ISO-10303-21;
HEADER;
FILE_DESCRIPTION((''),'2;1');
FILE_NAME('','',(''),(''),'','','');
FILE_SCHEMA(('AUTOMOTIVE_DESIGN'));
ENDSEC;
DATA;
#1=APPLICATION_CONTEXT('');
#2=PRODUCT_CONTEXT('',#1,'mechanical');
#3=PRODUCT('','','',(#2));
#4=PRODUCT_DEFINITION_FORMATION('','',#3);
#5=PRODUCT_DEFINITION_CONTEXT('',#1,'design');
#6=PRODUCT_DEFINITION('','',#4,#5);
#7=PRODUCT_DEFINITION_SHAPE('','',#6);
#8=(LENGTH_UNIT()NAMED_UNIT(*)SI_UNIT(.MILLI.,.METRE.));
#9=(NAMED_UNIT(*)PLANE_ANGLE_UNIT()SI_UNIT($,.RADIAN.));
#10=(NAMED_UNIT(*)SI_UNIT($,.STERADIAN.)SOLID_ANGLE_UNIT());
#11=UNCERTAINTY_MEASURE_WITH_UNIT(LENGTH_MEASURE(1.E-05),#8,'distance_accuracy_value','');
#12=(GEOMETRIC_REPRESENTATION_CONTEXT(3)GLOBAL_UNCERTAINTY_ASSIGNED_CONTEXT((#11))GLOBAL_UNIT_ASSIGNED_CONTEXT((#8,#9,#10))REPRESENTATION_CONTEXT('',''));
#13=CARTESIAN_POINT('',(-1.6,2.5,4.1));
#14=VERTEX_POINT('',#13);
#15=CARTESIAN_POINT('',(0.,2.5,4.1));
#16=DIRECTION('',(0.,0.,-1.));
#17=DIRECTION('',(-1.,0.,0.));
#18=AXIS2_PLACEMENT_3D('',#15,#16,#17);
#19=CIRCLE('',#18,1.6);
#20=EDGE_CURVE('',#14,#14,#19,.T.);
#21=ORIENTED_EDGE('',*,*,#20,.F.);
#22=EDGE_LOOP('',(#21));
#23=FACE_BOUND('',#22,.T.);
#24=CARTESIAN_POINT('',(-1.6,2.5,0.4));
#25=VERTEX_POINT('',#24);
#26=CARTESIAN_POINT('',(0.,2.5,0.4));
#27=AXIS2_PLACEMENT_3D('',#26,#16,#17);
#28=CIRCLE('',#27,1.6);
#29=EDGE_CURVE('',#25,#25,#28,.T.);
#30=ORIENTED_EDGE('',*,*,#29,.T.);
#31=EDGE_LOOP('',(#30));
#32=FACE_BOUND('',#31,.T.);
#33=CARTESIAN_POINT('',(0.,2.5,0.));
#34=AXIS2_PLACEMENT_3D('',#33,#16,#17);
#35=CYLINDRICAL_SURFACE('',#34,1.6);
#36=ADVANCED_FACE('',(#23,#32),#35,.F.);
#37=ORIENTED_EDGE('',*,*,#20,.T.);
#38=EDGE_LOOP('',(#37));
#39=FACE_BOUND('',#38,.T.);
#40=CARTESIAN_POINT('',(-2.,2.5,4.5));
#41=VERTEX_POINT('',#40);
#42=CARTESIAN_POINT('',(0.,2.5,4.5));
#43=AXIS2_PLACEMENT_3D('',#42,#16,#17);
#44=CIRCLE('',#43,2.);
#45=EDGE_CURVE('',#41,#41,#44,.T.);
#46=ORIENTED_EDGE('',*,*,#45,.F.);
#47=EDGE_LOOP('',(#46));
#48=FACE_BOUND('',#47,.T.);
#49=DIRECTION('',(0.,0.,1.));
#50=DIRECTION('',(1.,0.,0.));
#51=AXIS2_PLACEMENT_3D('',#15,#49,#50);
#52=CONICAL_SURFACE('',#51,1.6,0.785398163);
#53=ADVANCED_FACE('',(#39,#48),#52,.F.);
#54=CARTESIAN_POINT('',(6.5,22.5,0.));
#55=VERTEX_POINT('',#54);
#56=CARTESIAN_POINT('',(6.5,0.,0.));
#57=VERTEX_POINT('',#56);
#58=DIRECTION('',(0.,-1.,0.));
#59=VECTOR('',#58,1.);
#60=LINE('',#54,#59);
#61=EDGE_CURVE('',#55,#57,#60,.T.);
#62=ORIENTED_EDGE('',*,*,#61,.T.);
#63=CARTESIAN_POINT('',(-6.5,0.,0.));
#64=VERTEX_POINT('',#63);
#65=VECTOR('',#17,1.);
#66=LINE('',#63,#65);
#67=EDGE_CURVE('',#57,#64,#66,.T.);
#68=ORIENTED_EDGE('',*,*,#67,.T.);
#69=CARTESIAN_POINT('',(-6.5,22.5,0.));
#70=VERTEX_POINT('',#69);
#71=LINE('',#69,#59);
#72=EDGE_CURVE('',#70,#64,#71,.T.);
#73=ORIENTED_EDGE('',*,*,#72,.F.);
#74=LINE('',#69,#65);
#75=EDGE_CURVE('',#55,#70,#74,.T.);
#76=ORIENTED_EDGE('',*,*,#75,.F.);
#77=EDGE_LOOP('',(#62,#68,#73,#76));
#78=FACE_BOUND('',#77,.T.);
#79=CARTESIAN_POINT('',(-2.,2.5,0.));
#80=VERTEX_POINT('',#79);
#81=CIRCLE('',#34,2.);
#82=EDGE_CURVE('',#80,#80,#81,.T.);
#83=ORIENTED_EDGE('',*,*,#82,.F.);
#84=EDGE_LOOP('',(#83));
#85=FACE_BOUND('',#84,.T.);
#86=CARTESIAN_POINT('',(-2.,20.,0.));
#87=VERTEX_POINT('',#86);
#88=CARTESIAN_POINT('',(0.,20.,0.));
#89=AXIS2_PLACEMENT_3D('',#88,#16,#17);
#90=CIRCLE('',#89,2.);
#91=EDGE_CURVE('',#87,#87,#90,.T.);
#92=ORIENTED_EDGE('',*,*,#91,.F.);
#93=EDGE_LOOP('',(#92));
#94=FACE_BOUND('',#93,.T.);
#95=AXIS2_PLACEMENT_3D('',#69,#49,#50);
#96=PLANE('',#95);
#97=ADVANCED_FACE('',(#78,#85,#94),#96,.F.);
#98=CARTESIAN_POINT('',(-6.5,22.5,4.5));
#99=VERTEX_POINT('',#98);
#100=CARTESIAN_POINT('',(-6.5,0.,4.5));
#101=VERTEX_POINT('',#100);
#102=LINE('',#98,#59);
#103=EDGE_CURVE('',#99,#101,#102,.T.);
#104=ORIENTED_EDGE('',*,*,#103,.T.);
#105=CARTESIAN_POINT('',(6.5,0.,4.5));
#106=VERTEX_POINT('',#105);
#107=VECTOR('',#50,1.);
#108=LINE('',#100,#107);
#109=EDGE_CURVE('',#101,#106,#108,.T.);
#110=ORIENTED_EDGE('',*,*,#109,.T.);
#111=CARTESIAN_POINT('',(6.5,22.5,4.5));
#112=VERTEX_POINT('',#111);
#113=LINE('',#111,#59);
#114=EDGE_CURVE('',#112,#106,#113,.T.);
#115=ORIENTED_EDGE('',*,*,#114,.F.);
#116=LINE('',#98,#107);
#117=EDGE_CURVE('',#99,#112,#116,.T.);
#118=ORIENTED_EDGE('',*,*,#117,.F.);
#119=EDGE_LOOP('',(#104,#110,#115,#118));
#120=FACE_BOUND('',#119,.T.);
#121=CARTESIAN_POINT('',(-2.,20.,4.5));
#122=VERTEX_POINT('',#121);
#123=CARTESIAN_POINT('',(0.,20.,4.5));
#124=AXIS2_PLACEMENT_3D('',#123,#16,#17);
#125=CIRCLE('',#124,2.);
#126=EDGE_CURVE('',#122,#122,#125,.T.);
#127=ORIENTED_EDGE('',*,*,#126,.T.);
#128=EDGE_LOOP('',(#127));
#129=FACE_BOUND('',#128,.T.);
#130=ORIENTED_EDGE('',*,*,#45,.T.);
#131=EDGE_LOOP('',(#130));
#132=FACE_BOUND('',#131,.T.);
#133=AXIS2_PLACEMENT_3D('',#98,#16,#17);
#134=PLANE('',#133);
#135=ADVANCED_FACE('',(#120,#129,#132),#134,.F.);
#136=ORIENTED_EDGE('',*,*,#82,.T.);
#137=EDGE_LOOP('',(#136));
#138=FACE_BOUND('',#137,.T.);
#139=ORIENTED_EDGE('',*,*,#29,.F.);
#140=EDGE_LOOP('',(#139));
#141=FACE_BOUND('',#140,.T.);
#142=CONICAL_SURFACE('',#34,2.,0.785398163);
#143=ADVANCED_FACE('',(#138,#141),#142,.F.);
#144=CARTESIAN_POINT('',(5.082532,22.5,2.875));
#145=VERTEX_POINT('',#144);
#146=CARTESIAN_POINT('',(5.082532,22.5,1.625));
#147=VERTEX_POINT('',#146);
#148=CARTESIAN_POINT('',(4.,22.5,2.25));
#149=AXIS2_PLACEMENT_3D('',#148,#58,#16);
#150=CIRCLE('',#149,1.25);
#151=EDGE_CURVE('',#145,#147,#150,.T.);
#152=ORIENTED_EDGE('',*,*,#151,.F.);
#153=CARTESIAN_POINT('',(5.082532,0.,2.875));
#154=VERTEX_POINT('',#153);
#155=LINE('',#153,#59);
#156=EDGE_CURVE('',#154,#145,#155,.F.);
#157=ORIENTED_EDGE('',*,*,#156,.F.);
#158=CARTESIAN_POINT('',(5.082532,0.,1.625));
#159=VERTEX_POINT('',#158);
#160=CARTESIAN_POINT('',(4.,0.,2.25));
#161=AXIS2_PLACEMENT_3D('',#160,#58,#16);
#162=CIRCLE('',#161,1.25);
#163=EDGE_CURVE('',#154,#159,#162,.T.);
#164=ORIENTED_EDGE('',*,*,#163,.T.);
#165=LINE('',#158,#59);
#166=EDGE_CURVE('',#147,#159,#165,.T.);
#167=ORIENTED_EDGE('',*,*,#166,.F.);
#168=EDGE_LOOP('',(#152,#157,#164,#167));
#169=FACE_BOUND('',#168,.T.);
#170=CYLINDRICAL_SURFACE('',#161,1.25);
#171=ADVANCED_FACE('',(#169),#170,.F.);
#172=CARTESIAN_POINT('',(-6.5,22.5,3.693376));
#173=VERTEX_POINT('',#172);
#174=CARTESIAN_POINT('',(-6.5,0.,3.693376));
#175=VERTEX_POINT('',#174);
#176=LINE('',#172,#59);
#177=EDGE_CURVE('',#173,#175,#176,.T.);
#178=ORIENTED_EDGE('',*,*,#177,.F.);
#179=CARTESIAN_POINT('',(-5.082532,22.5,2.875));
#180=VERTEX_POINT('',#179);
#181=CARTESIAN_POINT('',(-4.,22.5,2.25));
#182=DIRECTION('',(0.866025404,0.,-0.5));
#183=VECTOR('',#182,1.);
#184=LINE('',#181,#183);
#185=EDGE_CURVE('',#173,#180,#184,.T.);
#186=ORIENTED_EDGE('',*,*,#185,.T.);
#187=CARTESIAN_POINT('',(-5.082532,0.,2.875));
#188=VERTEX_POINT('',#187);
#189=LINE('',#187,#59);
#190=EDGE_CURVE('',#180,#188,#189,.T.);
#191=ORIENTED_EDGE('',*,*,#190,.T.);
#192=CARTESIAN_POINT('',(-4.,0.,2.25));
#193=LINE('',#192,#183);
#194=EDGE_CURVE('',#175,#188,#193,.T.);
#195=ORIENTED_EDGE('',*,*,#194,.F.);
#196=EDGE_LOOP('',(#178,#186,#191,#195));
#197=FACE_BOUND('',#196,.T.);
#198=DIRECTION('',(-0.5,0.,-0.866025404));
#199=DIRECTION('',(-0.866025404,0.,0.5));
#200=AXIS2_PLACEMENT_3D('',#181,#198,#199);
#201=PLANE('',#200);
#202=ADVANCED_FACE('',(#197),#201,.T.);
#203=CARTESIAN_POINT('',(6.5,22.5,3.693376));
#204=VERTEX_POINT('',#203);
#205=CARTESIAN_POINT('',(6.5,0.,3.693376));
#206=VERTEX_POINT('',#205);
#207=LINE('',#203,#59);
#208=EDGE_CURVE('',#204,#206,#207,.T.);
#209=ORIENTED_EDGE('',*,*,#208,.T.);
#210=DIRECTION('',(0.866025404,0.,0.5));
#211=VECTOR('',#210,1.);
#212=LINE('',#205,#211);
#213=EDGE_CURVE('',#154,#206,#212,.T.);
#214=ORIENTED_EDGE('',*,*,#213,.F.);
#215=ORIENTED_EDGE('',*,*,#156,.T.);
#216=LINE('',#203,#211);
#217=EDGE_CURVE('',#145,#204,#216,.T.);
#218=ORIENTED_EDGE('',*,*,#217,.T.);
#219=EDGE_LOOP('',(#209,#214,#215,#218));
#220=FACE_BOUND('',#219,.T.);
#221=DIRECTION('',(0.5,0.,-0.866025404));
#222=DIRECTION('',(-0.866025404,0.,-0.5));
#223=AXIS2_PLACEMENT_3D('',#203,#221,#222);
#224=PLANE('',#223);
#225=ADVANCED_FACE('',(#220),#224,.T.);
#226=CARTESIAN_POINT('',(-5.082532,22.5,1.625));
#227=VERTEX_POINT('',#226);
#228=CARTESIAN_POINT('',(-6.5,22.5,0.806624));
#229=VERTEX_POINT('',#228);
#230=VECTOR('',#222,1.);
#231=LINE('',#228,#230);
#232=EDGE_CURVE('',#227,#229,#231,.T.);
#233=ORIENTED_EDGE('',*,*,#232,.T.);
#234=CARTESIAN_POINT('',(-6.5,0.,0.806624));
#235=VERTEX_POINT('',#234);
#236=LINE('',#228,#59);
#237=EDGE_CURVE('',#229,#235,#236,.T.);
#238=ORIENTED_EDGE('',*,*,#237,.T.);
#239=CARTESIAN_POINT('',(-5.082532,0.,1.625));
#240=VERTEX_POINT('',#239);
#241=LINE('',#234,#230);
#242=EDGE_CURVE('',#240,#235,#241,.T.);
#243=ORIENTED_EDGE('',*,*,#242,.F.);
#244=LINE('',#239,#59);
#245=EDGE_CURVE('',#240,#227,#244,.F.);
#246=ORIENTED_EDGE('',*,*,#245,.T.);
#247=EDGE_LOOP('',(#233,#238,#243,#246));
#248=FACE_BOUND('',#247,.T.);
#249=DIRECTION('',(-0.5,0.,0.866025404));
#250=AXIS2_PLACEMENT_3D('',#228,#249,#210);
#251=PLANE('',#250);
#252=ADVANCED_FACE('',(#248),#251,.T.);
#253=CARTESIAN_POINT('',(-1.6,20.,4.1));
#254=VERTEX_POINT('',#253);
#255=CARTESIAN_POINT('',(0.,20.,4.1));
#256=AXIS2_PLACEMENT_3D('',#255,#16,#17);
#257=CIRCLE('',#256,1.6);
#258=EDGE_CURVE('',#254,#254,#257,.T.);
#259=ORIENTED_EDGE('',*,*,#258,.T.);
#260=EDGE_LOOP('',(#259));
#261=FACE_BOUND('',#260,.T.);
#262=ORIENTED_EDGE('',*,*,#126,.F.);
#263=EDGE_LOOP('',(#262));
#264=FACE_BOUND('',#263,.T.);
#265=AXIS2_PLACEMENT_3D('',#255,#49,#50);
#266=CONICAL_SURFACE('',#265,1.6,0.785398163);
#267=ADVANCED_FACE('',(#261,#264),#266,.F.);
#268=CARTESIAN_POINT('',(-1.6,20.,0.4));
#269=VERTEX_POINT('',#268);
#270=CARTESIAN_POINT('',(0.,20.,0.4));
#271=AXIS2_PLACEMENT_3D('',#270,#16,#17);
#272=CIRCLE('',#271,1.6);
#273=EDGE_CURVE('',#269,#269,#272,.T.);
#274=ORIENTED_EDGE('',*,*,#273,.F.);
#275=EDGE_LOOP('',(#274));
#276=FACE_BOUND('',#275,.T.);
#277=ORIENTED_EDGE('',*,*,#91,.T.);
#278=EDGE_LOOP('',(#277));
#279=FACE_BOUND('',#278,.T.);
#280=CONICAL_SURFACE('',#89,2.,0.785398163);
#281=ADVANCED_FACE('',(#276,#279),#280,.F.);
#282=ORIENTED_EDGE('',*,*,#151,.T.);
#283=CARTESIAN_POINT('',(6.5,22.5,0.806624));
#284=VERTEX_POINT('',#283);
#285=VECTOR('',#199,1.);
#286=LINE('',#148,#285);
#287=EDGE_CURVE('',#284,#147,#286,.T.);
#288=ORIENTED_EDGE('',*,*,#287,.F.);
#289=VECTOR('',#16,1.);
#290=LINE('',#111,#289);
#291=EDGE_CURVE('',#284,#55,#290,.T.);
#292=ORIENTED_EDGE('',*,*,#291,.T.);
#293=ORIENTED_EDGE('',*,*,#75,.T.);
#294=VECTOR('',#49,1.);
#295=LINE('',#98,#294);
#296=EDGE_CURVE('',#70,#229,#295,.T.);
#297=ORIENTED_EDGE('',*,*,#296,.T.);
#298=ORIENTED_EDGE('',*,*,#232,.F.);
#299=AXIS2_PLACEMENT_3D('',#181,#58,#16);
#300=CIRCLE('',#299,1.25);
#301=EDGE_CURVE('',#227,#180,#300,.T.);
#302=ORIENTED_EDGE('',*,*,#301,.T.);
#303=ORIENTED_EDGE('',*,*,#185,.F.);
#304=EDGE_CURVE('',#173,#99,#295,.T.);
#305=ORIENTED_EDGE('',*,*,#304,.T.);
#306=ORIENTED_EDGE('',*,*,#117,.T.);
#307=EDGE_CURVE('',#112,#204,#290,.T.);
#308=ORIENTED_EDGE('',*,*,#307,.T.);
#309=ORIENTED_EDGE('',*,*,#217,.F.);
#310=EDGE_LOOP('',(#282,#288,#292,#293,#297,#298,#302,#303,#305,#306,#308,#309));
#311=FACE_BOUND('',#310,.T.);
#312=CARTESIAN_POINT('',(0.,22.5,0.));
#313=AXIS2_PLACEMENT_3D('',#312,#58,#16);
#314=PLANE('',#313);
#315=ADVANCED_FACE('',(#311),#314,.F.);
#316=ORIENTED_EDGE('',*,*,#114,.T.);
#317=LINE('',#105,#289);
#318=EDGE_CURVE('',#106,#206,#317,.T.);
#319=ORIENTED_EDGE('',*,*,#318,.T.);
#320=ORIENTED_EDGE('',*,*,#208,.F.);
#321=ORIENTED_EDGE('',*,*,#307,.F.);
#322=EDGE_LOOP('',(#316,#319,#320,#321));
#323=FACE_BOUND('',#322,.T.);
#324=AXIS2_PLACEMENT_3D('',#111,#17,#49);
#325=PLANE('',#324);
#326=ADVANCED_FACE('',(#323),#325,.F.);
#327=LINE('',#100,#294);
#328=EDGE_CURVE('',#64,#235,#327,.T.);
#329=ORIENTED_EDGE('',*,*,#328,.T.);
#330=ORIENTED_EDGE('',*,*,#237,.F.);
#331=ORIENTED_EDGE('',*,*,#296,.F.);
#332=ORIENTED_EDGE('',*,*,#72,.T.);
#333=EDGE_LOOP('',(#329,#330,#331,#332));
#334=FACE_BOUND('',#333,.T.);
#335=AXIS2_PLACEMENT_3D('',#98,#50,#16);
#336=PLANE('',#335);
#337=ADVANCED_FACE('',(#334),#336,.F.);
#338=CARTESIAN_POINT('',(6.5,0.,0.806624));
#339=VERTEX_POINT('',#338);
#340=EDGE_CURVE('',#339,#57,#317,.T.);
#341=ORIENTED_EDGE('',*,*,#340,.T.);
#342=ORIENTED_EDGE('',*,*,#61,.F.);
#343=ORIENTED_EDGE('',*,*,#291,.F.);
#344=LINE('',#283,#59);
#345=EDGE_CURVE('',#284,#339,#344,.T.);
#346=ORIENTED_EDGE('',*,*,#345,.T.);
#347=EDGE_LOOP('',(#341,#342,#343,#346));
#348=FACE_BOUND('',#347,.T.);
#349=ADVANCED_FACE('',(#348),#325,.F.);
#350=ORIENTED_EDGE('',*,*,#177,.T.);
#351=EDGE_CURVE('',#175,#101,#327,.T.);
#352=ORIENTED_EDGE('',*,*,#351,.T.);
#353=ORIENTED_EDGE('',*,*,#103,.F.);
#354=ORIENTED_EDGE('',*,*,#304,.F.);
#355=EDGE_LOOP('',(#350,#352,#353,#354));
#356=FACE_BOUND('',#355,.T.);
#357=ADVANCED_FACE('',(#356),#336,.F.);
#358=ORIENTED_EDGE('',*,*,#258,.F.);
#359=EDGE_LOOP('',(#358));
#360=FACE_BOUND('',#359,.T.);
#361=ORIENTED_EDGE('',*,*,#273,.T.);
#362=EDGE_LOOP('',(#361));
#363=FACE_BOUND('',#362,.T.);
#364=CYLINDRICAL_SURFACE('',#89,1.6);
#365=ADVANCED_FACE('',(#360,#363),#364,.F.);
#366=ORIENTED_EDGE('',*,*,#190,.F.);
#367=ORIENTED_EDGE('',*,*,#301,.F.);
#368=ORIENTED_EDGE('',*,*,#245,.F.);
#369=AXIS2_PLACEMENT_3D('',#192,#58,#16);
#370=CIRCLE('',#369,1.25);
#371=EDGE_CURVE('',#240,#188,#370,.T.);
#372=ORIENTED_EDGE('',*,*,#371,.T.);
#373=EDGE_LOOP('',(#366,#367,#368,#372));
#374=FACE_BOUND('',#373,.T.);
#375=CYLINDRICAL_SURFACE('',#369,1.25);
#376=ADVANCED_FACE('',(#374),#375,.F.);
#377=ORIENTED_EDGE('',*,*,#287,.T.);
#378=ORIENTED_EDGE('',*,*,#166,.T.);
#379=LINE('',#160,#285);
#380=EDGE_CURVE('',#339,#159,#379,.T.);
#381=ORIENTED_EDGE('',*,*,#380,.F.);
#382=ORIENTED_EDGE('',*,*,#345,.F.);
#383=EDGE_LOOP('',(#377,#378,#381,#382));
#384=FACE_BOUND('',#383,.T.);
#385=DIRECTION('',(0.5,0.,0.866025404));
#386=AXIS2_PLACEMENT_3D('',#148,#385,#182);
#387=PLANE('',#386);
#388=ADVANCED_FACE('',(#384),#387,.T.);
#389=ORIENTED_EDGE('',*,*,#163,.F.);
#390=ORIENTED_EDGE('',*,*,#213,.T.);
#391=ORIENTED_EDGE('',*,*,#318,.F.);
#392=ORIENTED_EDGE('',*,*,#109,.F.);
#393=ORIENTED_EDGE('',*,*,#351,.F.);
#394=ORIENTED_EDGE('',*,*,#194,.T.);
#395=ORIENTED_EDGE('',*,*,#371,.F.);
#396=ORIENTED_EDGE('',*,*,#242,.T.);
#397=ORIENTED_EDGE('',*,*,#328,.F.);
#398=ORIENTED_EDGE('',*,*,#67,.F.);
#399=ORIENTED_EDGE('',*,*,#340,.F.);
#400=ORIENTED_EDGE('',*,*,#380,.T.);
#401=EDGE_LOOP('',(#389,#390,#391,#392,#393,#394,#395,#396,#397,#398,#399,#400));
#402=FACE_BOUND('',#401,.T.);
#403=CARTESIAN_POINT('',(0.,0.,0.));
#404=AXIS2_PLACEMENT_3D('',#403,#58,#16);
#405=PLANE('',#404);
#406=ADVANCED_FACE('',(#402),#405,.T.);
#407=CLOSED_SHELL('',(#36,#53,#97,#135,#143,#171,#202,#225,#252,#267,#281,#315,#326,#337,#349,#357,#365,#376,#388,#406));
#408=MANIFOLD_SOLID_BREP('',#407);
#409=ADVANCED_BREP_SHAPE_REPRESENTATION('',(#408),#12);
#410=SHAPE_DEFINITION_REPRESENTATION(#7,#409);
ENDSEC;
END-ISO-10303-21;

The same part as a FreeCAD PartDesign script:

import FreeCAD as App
import Part
import Sketcher
from FreeCAD import Vector
Q = App.Units.Quantity

doc = App.newDocument("Part")
body = doc.addObject("PartDesign::Body", "Body")

# Sketch on XZ plane
sketch1 = body.newObject("Sketcher::SketchObject", "Sketch")
sketch1.AttachmentSupport = (doc.getObject("XZ_Plane"), [""])
sketch1.MapMode = "FlatFace"
sketch1.addGeometry(Part.LineSegment(Vector(-6.5, 0, 0), Vector(-6.5, 4.5, 0)), False)
sketch1.addGeometry(Part.LineSegment(Vector(-6.5, 4.5, 0), Vector(6.5, 4.5, 0)), False)
sketch1.addGeometry(Part.LineSegment(Vector(6.5, 4.5, 0), Vector(6.5, 0, 0)), False)
sketch1.addGeometry(Part.LineSegment(Vector(6.5, 0, 0), Vector(-6.5, 0, 0)), False)
sketch1.addConstraint(Sketcher.Constraint("Coincident", 0, 2, 1, 1))
sketch1.addConstraint(Sketcher.Constraint("Coincident", 1, 2, 2, 1))
sketch1.addConstraint(Sketcher.Constraint("Coincident", 2, 2, 3, 1))
sketch1.addConstraint(Sketcher.Constraint("Coincident", 3, 2, 0, 1))
sketch1.addConstraint(Sketcher.Constraint("Vertical", 0))
sketch1.addConstraint(Sketcher.Constraint("Horizontal", 1))
sketch1.addConstraint(Sketcher.Constraint("Vertical", 2))
sketch1.addConstraint(Sketcher.Constraint("Horizontal", 3))
sketch1.addConstraint(Sketcher.Constraint("Symmetric", 2, 2, 3, 2, -1, 1))
sketch1.addConstraint(Sketcher.Constraint("DistanceX", 1, 1, 1, 2, 13.0))
sketch1.addConstraint(Sketcher.Constraint("DistanceY", 0, 1, 0, 2, 4.5))
pad1 = body.newObject("PartDesign::Pad", "Pad")
pad1.Profile = sketch1
pad1.Length = 22.5
pad1.Reversed = True

# Sketch on YZ plane
sketch2 = body.newObject("Sketcher::SketchObject", "Sketch001")
sketch2.AttachmentSupport = (doc.getObject("YZ_Plane"), [""])
sketch2.MapMode = "FlatFace"
sketch2.addGeometry(Part.LineSegment(Vector(20, 4.5, 0), Vector(20, 0, 0)), False)
sketch2.addGeometry(Part.LineSegment(Vector(20, 0, 0), Vector(22, 0, 0)), False)
sketch2.addGeometry(Part.LineSegment(Vector(22, 0, 0), Vector(21.6, 0.4, 0)), False)
sketch2.addGeometry(Part.LineSegment(Vector(21.6, 0.4, 0), Vector(21.6, 4.1, 0)), False)
sketch2.addGeometry(Part.LineSegment(Vector(21.6, 4.1, 0), Vector(22, 4.5, 0)), False)
sketch2.addGeometry(Part.LineSegment(Vector(22, 4.5, 0), Vector(20, 4.5, 0)), False)
sketch2.addGeometry(Part.LineSegment(Vector(20, 0, 0), Vector(20, 4.5, 0)), True)  # axis
sketch2.addConstraint(Sketcher.Constraint("Coincident", 0, 2, 1, 1))
sketch2.addConstraint(Sketcher.Constraint("Coincident", 1, 2, 2, 1))
sketch2.addConstraint(Sketcher.Constraint("Coincident", 2, 2, 3, 1))
sketch2.addConstraint(Sketcher.Constraint("Coincident", 3, 2, 4, 1))
sketch2.addConstraint(Sketcher.Constraint("Coincident", 4, 2, 5, 1))
sketch2.addConstraint(Sketcher.Constraint("Coincident", 5, 2, 0, 1))
sketch2.addConstraint(Sketcher.Constraint("Vertical", 0))
sketch2.addConstraint(Sketcher.Constraint("Horizontal", 1))
sketch2.addConstraint(Sketcher.Constraint("Vertical", 3))
sketch2.addConstraint(Sketcher.Constraint("Horizontal", 5))
sketch2.addConstraint(Sketcher.Constraint("Vertical", 6))
sketch2.addConstraint(Sketcher.Constraint("Coincident", 6, 1, 0, 2))
sketch2.addConstraint(Sketcher.Constraint("PointOnObject", 0, 2, -1))
sketch2.addConstraint(Sketcher.Constraint("Perpendicular", 2, 4))
sketch2.addConstraint(Sketcher.Constraint("Horizontal", 4, 2, 6, 2))
sketch2.addConstraint(Sketcher.Constraint("Vertical", 1, 2, 4, 2))
sketch2.addConstraint(Sketcher.Constraint("Equal", 2, 4))
sketch2.addConstraint(Sketcher.Constraint("DistanceX", 1, 1, 1, 2, 2.0))
sketch2.addConstraint(Sketcher.Constraint("DistanceY", 0, 2, 0, 1, 4.5))
sketch2.addConstraint(Sketcher.Constraint("DistanceY", 3, 1, 3, 2, 3.7))
sketch2.addConstraint(Sketcher.Constraint("DistanceX", -1, 1, 0, 2, 20.0))
groove = body.newObject("PartDesign::Groove", "Groove")
groove.Profile = sketch2
groove.ReferenceAxis = (sketch2, ["Axis0"])
groove.Angle = 360
doc.recompute()

linearpattern = body.newObject("PartDesign::LinearPattern", "LinearPattern")
linearpattern.Originals = [groove]
linearpattern.Direction = (doc.getObject("Y_Axis"), [""])
linearpattern.Mode = "offset"
linearpattern.Offset = 17.5
linearpattern.Occurrences = 2
linearpattern.Reversed = True
body.Tip = linearpattern

# Sketch on XZ plane
sketch3 = body.newObject("Sketcher::SketchObject", "Sketch002")
sketch3.AttachmentSupport = (doc.getObject("XZ_Plane"), [""])
sketch3.MapMode = "FlatFace"
sketch3.addGeometry(Part.Circle(Vector(-4, 2.2, 0), Vector(0, 0, 1), 1.2), False)
sketch3.addGeometry(Part.Circle(Vector(4, 2.2, 0), Vector(0, 0, 1), 1.2), False)
sketch3.addConstraint(Sketcher.Constraint("Equal", 0, 1))
sketch3.addConstraint(Sketcher.Constraint("Symmetric", 0, 3, 1, 3, -2))
sketch3.addConstraint(Sketcher.Constraint("Diameter", 0, 2.5))
sketch3.addConstraint(Sketcher.Constraint("DistanceX", 0, 3, -1, 1, 4.0))
sketch3.addConstraint(Sketcher.Constraint("DistanceY", -1, 1, 0, 3, 2.25))
doc.recompute()
hole = body.newObject("PartDesign::Hole", "Hole")
hole.Profile = sketch3
hole.ThreadType = "None"
hole.Diameter = 2.5
hole.DepthType = "ThroughAll"

# Sketch on XZ plane
sketch4 = body.newObject("Sketcher::SketchObject", "Sketch003")
sketch4.AttachmentSupport = (doc.getObject("XZ_Plane"), [""])
sketch4.MapMode = "FlatFace"
sketch4.addGeometry(Part.LineSegment(Vector(-4, 2.2, 0), Vector(-6.5, 0.8, 0)), False)
sketch4.addGeometry(Part.LineSegment(Vector(-6.5, 0.8, 0), Vector(-6.5, 3.7, 0)), False)
sketch4.addGeometry(Part.LineSegment(Vector(-6.5, 3.7, 0), Vector(-4, 2.2, 0)), False)
sketch4.addGeometry(Part.LineSegment(Vector(6.5, 0.8, 0), Vector(4, 2.2, 0)), False)
sketch4.addGeometry(Part.LineSegment(Vector(4, 2.2, 0), Vector(6.5, 3.7, 0)), False)
sketch4.addGeometry(Part.LineSegment(Vector(6.5, 3.7, 0), Vector(6.5, 0.8, 0)), False)
sketch4.addConstraint(Sketcher.Constraint("Coincident", 0, 2, 1, 1))
sketch4.addConstraint(Sketcher.Constraint("Coincident", 1, 2, 2, 1))
sketch4.addConstraint(Sketcher.Constraint("Coincident", 2, 2, 0, 1))
sketch4.addConstraint(Sketcher.Constraint("Coincident", 3, 2, 4, 1))
sketch4.addConstraint(Sketcher.Constraint("Coincident", 4, 2, 5, 1))
sketch4.addConstraint(Sketcher.Constraint("Coincident", 5, 2, 3, 1))
sketch4.addConstraint(Sketcher.Constraint("Vertical", 1))
sketch4.addConstraint(Sketcher.Constraint("Vertical", 5))
sketch4.addConstraint(Sketcher.Constraint("Symmetric", 2, 2, 3, 2, -2))
sketch4.addConstraint(Sketcher.Constraint("Symmetric", 1, 2, 4, 2, -2))
sketch4.addConstraint(Sketcher.Constraint("Parallel", 2, 3))
sketch4.addConstraint(Sketcher.Constraint("Parallel", 0, 4))
sketch4.addConstraint(Sketcher.Constraint("Angle", 0, Q("-150 deg")))
sketch4.addConstraint(Sketcher.Constraint("DistanceX", 2, 2, -1, 1, 4.0))
sketch4.addConstraint(Sketcher.Constraint("DistanceX", 1, 2, 4, 2, 13.0))
sketch4.addConstraint(Sketcher.Constraint("DistanceY", -1, 1, 2, 2, 2.25))
pocket1 = body.newObject("PartDesign::Pocket", "Pocket")
pocket1.Profile = sketch4
pocket1.Type = "ThroughAll"

doc.recompute()
